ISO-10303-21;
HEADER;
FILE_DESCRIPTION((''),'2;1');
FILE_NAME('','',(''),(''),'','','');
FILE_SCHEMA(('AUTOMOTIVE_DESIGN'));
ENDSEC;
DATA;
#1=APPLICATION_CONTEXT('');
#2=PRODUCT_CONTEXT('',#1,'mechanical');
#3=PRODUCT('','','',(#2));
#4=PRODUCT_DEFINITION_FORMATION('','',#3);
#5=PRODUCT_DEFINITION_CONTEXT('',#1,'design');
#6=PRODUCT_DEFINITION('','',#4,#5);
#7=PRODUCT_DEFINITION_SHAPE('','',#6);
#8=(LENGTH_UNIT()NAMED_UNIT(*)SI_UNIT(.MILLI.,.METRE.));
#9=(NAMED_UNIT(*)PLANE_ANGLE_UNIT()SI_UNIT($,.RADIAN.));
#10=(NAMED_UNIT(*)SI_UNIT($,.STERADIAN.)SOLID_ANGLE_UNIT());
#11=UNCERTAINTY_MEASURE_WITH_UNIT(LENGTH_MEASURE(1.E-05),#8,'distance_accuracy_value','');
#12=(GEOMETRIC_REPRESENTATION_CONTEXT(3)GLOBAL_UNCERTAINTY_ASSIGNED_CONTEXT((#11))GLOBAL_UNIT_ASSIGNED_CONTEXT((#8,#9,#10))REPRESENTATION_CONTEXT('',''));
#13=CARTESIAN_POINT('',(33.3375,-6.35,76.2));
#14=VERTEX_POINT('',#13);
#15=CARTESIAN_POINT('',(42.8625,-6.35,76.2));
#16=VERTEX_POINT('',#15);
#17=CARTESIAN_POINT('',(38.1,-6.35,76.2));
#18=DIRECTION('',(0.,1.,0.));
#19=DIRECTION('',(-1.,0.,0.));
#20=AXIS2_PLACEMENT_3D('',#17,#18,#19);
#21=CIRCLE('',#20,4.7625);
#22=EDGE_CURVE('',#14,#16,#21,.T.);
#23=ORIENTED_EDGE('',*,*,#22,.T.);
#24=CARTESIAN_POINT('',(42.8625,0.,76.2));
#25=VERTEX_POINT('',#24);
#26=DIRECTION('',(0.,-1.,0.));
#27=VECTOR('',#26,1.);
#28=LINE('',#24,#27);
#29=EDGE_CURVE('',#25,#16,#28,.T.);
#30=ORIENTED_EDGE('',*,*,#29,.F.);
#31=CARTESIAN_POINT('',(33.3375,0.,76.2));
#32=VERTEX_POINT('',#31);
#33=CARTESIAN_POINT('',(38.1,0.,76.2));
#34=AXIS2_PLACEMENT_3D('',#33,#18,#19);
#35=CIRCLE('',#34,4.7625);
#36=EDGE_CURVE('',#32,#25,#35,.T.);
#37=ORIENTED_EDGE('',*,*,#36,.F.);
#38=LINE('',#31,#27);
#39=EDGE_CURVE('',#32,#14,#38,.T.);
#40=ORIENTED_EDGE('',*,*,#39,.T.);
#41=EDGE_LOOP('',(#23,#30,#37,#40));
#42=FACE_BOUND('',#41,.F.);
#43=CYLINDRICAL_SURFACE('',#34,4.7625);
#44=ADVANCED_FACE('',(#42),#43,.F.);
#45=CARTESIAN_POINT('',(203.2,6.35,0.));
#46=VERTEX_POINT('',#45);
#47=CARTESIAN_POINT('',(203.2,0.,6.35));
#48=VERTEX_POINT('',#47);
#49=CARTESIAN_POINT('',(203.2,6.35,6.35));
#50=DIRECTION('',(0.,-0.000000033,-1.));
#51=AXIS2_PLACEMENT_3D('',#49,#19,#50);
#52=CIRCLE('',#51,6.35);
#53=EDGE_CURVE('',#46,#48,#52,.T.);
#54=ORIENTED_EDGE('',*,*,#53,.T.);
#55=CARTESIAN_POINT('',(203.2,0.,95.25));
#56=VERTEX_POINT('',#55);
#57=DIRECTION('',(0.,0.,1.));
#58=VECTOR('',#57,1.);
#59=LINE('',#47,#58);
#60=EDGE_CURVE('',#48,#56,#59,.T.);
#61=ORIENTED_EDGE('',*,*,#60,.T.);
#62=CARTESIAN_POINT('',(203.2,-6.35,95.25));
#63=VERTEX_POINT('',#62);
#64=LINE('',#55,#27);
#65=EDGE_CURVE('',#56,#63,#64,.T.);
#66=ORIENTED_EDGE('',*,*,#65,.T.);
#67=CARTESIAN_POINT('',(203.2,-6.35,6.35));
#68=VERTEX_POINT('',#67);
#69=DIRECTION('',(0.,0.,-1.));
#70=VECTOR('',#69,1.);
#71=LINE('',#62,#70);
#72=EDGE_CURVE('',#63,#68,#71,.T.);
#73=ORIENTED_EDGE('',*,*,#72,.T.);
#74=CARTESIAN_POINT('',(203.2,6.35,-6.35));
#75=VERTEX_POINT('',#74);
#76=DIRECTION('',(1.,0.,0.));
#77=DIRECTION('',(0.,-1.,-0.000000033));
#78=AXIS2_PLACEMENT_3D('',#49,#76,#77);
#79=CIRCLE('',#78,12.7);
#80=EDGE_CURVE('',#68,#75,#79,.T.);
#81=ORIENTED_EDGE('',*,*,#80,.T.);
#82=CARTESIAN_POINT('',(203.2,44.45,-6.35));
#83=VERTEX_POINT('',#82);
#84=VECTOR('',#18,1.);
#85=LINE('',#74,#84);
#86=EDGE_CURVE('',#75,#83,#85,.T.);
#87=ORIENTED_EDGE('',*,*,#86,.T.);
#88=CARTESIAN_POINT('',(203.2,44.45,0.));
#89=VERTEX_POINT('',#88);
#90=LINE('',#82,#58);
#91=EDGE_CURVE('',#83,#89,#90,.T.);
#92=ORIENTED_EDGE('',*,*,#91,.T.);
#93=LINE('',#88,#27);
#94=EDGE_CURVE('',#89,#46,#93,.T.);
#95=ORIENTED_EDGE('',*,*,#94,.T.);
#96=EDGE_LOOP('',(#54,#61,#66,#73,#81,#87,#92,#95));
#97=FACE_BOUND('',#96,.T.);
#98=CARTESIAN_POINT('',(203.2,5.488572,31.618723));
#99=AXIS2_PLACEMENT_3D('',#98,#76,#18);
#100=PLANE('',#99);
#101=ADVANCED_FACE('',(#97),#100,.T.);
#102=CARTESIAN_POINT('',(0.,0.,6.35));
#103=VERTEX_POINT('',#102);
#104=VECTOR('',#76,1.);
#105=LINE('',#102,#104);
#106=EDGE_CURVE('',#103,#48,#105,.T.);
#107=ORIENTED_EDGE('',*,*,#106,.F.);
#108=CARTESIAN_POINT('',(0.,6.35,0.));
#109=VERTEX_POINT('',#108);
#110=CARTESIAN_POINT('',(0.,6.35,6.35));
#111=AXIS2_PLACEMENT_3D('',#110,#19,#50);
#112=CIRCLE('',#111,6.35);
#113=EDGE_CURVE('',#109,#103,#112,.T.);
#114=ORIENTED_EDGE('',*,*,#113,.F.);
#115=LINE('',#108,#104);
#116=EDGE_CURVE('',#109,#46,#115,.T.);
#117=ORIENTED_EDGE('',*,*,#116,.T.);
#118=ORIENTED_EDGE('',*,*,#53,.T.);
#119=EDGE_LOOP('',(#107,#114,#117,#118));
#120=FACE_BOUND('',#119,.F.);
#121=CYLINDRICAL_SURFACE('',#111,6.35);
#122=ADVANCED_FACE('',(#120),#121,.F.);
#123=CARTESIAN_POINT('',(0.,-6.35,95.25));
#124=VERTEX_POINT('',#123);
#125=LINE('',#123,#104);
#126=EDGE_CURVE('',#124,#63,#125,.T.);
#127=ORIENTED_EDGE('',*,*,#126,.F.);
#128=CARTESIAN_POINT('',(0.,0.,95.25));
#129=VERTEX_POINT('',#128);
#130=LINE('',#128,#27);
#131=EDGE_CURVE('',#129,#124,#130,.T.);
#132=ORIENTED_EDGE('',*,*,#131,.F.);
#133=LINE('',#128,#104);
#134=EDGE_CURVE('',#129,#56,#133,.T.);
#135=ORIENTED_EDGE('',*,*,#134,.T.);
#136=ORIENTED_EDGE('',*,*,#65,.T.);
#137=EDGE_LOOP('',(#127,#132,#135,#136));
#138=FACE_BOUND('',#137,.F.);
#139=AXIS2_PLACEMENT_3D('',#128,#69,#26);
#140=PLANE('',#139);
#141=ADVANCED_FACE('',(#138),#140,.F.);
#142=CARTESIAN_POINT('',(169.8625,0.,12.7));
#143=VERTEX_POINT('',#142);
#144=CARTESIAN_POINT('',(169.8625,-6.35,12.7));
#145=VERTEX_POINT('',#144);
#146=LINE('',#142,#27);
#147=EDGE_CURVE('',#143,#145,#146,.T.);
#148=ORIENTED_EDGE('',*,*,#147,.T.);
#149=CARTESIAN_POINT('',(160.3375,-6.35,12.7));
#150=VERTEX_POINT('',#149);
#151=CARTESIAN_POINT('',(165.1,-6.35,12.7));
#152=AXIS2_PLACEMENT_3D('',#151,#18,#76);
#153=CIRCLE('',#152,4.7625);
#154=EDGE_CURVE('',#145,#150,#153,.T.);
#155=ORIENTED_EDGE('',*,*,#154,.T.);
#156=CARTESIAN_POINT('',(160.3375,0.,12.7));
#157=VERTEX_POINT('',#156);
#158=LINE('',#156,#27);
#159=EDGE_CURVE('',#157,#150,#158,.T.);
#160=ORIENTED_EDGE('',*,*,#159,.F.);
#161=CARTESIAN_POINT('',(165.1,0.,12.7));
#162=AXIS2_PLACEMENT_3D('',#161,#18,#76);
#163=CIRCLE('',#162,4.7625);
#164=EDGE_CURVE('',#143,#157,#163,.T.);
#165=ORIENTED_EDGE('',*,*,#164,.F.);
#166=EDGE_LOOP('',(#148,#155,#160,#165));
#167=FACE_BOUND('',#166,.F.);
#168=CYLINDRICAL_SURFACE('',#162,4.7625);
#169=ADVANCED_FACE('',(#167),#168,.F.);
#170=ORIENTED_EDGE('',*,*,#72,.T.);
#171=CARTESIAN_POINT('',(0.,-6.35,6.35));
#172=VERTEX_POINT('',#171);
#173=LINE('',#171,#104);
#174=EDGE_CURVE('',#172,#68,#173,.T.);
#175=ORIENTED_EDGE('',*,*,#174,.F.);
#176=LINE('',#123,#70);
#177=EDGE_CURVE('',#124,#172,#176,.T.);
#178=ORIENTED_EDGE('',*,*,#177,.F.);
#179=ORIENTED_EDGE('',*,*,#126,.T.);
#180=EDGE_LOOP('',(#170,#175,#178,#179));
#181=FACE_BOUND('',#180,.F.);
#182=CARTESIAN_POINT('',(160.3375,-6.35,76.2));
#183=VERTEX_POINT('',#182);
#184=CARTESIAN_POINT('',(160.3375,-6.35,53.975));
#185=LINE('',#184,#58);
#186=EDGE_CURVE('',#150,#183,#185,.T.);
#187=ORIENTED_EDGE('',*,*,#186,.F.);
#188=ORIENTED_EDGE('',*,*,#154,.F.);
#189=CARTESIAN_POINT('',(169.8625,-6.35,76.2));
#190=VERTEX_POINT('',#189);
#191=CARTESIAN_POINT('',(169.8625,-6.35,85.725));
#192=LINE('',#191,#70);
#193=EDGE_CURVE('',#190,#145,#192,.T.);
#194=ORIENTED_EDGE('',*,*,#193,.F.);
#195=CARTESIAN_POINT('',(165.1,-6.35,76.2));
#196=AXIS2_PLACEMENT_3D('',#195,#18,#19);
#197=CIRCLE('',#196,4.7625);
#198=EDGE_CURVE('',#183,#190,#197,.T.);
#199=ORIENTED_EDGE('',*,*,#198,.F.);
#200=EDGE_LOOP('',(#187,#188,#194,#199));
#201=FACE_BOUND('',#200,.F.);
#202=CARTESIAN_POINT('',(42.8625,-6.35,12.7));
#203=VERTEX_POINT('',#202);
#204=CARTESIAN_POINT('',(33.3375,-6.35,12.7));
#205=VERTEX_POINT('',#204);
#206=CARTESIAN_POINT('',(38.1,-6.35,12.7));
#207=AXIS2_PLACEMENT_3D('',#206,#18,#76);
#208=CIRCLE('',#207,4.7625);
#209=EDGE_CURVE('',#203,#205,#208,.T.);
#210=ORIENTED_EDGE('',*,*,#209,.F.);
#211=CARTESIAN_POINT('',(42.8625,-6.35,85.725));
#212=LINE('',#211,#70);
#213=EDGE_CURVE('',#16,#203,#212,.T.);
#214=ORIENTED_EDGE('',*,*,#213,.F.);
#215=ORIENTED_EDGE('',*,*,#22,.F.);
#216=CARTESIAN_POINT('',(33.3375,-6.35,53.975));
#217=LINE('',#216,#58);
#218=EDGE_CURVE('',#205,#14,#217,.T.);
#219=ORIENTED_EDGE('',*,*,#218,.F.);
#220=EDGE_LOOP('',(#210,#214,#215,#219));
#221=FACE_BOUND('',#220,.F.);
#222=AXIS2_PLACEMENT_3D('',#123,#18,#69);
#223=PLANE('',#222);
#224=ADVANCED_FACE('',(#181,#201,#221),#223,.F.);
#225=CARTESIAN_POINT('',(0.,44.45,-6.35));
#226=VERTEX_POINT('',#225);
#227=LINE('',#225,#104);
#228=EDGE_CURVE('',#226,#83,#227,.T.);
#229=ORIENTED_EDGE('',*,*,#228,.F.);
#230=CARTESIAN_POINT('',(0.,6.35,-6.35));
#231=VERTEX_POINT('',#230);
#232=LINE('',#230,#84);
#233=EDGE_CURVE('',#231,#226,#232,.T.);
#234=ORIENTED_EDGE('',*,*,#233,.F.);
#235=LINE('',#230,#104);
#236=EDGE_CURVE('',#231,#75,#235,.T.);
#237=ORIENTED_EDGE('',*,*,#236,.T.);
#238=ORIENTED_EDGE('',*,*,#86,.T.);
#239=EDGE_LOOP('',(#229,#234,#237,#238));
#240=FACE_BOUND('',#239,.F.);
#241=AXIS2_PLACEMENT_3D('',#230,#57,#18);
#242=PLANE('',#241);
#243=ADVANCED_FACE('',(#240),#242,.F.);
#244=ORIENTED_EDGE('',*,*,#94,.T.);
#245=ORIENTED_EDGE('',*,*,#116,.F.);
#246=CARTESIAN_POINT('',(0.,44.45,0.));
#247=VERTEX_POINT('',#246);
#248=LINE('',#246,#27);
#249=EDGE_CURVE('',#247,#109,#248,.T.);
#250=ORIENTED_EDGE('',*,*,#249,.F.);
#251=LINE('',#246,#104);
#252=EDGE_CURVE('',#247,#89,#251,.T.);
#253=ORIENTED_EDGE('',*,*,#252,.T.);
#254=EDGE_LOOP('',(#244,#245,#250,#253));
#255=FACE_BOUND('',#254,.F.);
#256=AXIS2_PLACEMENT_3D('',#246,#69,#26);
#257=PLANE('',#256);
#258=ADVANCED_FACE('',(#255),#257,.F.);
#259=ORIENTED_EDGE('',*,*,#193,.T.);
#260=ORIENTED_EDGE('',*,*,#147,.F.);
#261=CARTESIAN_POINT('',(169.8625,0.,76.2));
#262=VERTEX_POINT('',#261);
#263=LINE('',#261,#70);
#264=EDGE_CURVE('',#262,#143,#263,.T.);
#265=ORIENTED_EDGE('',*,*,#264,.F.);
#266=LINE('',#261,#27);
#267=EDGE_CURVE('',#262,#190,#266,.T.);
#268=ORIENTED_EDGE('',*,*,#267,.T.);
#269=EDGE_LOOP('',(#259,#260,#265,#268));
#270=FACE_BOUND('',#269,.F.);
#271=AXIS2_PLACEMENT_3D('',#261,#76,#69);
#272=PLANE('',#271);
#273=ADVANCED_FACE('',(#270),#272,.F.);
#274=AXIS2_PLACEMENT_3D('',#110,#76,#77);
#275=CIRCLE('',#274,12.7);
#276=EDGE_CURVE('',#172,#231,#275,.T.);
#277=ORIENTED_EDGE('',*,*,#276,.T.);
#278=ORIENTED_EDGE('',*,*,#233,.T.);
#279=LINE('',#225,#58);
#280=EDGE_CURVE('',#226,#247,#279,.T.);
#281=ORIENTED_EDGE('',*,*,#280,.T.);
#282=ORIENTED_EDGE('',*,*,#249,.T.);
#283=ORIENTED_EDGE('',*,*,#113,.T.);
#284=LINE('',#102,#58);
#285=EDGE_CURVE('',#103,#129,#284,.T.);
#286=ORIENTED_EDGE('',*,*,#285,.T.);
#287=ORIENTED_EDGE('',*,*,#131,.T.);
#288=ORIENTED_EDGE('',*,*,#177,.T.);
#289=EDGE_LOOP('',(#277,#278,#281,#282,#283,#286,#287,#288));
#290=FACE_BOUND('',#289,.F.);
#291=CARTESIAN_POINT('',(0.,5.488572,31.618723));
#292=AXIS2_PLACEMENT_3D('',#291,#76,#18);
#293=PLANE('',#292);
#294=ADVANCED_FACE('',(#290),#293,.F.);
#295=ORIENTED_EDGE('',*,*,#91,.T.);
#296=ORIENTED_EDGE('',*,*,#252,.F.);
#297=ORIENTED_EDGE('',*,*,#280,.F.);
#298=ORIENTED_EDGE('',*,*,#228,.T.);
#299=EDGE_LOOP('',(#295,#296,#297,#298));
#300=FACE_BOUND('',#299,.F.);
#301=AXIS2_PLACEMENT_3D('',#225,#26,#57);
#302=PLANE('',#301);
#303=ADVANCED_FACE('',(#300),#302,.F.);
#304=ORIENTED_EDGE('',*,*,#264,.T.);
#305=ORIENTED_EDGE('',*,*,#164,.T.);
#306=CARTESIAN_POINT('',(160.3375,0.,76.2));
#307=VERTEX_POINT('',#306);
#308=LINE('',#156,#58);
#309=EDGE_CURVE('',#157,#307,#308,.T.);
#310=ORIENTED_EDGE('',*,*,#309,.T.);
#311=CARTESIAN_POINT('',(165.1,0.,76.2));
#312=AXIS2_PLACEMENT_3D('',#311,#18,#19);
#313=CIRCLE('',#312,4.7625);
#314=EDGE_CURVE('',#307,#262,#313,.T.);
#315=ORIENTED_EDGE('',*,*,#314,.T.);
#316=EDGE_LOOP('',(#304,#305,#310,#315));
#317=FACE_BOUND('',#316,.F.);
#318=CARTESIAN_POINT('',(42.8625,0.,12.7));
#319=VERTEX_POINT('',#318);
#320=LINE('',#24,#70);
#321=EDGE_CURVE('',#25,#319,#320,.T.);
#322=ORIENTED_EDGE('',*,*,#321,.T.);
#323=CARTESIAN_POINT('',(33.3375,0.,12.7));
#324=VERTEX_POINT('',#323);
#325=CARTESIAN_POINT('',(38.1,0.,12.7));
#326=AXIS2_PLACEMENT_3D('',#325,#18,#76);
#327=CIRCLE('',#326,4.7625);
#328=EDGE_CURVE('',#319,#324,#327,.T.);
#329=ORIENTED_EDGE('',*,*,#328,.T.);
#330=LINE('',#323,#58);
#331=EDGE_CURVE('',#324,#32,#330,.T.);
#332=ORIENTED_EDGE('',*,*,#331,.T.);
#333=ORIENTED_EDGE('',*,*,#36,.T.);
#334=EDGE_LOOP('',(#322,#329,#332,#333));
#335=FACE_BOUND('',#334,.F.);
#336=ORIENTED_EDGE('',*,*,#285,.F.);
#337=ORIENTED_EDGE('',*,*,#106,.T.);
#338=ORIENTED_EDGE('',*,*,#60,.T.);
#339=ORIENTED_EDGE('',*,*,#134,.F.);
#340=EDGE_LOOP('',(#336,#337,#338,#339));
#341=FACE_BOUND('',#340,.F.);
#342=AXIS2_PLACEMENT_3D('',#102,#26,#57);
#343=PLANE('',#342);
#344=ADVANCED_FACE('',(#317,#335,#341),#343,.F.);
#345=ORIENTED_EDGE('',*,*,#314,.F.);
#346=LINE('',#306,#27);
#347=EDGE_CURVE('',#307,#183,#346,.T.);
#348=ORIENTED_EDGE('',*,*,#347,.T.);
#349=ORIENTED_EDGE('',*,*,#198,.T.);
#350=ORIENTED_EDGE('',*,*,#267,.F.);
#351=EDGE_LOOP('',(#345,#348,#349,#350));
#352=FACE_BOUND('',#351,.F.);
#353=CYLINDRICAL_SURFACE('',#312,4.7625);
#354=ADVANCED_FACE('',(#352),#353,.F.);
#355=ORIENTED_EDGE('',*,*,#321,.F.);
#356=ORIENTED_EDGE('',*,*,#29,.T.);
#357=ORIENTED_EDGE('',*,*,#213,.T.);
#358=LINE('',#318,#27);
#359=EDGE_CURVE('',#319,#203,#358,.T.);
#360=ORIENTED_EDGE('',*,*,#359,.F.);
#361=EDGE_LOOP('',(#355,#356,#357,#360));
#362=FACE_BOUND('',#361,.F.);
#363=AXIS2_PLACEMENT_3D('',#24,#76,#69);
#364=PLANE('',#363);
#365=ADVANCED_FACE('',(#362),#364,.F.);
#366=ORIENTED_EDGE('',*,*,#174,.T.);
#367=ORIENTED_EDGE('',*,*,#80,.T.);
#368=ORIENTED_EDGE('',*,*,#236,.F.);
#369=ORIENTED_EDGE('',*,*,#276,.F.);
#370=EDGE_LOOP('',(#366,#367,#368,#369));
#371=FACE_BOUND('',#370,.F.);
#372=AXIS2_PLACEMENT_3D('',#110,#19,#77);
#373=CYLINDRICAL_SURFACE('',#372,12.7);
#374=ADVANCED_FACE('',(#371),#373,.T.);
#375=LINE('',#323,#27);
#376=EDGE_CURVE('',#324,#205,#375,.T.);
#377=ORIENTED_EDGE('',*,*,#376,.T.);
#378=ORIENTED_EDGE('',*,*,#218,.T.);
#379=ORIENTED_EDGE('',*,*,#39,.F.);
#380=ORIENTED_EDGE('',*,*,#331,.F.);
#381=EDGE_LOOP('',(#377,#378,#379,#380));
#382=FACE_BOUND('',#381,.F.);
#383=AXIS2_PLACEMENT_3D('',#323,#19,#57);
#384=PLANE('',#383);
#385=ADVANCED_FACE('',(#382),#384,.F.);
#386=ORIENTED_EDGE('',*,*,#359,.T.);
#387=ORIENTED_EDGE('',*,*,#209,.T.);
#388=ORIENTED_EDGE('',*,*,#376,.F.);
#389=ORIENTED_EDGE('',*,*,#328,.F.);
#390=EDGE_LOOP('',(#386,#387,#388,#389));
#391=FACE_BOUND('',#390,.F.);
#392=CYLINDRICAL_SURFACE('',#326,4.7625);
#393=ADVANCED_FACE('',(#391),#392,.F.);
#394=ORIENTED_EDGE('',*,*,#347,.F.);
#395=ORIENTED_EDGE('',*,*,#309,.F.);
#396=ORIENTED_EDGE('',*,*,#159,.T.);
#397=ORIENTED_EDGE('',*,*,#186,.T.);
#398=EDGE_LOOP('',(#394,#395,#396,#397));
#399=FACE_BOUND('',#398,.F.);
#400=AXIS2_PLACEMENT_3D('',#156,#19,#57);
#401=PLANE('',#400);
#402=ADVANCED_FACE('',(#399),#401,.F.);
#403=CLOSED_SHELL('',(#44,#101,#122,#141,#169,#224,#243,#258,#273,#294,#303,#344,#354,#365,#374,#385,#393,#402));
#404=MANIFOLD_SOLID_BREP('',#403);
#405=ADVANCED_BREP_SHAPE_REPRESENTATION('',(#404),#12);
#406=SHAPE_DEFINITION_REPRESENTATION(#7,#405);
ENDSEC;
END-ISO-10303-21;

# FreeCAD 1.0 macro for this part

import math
import FreeCAD as App
import Part
import Sketcher
from FreeCAD import Vector
Q = App.Units.Quantity

doc = App.newDocument("Part")
body = doc.addObject("PartDesign::Body", "Body")

sketch1 = body.newObject("Sketcher::SketchObject", "Sketch")
sketch1.AttachmentSupport = (doc.getObject("YZ_Plane"), [""])
sketch1.MapMode = "FlatFace"
sketch1.addGeometry(Part.LineSegment(Vector(0, 95.25, 0), Vector(-6.35, 95.25, 0)), False)
sketch1.addGeometry(Part.LineSegment(Vector(-6.35, 95.25, 0), Vector(-6.35, 6.35, 0)), False)
sketch1.addGeometry(Part.ArcOfCircle(Part.Circle(Vector(6.35, 6.35, 0), Vector(0, 0, 1), 12.7), math.radians(-179.999998), math.radians(-90.000002)), False)
sketch1.addGeometry(Part.LineSegment(Vector(6.35, -6.35, 0), Vector(44.45, -6.35, 0)), False)
sketch1.addGeometry(Part.LineSegment(Vector(44.45, -6.35, 0), Vector(44.45, 0, 0)), False)
sketch1.addGeometry(Part.LineSegment(Vector(44.45, 0, 0), Vector(6.35, 0, 0)), False)
sketch1.addGeometry(Part.ArcOfCircle(Part.Circle(Vector(6.35, 6.35, 0), Vector(0, 0, 1), 6.35), math.radians(-179.999998), math.radians(-90.000002)), False)
sketch1.addGeometry(Part.LineSegment(Vector(0, 6.35, 0), Vector(0, 95.25, 0)), False)
sketch1.addConstraint(Sketcher.Constraint("Coincident", 0, 2, 1, 1))
sketch1.addConstraint(Sketcher.Constraint("Tangent", 1, 2, 2, 1))
sketch1.addConstraint(Sketcher.Constraint("Tangent", 2, 2, 3, 1))
sketch1.addConstraint(Sketcher.Constraint("Coincident", 3, 2, 4, 1))
sketch1.addConstraint(Sketcher.Constraint("Coincident", 4, 2, 5, 1))
sketch1.addConstraint(Sketcher.Constraint("Tangent", 5, 2, 6, 2))
sketch1.addConstraint(Sketcher.Constraint("Tangent", 6, 1, 7, 1))
sketch1.addConstraint(Sketcher.Constraint("Coincident", 7, 2, 0, 1))
sketch1.addConstraint(Sketcher.Constraint("Horizontal", 0))
sketch1.addConstraint(Sketcher.Constraint("Vertical", 1))
sketch1.addConstraint(Sketcher.Constraint("Horizontal", 3))
sketch1.addConstraint(Sketcher.Constraint("Vertical", 4))
sketch1.addConstraint(Sketcher.Constraint("Horizontal", 5))
sketch1.addConstraint(Sketcher.Constraint("Vertical", 7))
sketch1.addConstraint(Sketcher.Constraint("Coincident", 6, 3, 2, 3))
sketch1.addConstraint(Sketcher.Constraint("Symmetric", 1, 2, 2, 2, -1, 1))
sketch1.addConstraint(Sketcher.Constraint("PointOnObject", 4, 2, -1))
sketch1.addConstraint(Sketcher.Constraint("Radius", 2, Q("0.5 in")))
sketch1.addConstraint(Sketcher.Constraint("DistanceX", 3, 1, 3, 2, Q("1.5 in")))
sketch1.addConstraint(Sketcher.Constraint("DistanceY", 1, 2, 1, 1, Q("3.5 in")))
pad1 = body.newObject("PartDesign::Pad", "Pad")
pad1.Profile = sketch1
pad1.Length = Q("8 in")

sketch2 = body.newObject("Sketcher::SketchObject", "Sketch001")
sketch2.AttachmentSupport = (doc.getObject("XZ_Plane"), [""])
sketch2.MapMode = "FlatFace"
sketch2.addGeometry(Part.LineSegment(Vector(160.3375, 12.7, 0), Vector(160.3375, 76.2, 0)), False)
sketch2.addGeometry(Part.ArcOfCircle(Part.Circle(Vector(165.1, 76.2, 0), Vector(0, 0, 1), 4.7625), math.radians(0), math.radians(180)), False)
sketch2.addGeometry(Part.LineSegment(Vector(169.8625, 76.2, 0), Vector(169.8625, 12.7, 0)), False)
sketch2.addGeometry(Part.ArcOfCircle(Part.Circle(Vector(165.1, 12.7, 0), Vector(0, 0, 1), 4.7625), math.radians(180), math.radians(360)), False)
sketch2.addGeometry(Part.LineSegment(Vector(33.3375, 12.7, 0), Vector(33.3375, 76.2, 0)), False)
sketch2.addGeometry(Part.ArcOfCircle(Part.Circle(Vector(38.1, 76.2, 0), Vector(0, 0, 1), 4.7625), math.radians(0), math.radians(180)), False)
sketch2.addGeometry(Part.LineSegment(Vector(42.8625, 76.2, 0), Vector(42.8625, 12.7, 0)), False)
sketch2.addGeometry(Part.ArcOfCircle(Part.Circle(Vector(38.1, 12.7, 0), Vector(0, 0, 1), 4.7625), math.radians(180), math.radians(360)), False)
sketch2.addConstraint(Sketcher.Constraint("Tangent", 0, 2, 1, 2))
sketch2.addConstraint(Sketcher.Constraint("Tangent", 1, 1, 2, 1))
sketch2.addConstraint(Sketcher.Constraint("Tangent", 2, 2, 3, 2))
sketch2.addConstraint(Sketcher.Constraint("Tangent", 3, 1, 0, 1))
sketch2.addConstraint(Sketcher.Constraint("Tangent", 4, 2, 5, 2))
sketch2.addConstraint(Sketcher.Constraint("Tangent", 5, 1, 6, 1))
sketch2.addConstraint(Sketcher.Constraint("Tangent", 6, 2, 7, 2))
sketch2.addConstraint(Sketcher.Constraint("Tangent", 7, 1, 4, 1))
sketch2.addConstraint(Sketcher.Constraint("Vertical", 0))
sketch2.addConstraint(Sketcher.Constraint("Vertical", 2))
sketch2.addConstraint(Sketcher.Constraint("Vertical", 4))
sketch2.addConstraint(Sketcher.Constraint("Vertical", 6))
sketch2.addConstraint(Sketcher.Constraint("Equal", 3, 5))
sketch2.addConstraint(Sketcher.Constraint("Horizontal", 1, 3, 5, 3))
sketch2.addConstraint(Sketcher.Constraint("Horizontal", 3, 3, 7, 3))
sketch2.addConstraint(Sketcher.Constraint("DistanceY", 0, 1, 0, 2, Q("2.5 in")))
sketch2.addConstraint(Sketcher.Constraint("DistanceY", -1, 1, 1, 3, Q("3 in")))
sketch2.addConstraint(Sketcher.Constraint("Radius", 1, Q("0.1875 in")))
sketch2.addConstraint(Sketcher.Constraint("DistanceX", 5, 3, 1, 3, Q("5 in")))
sketch2.addConstraint(Sketcher.Constraint("DistanceX", -1, 1, 1, 3, Q("6.5 in")))
pocket1 = body.newObject("PartDesign::Pocket", "Pocket")
pocket1.Profile = sketch2
pocket1.Type = "ThroughAll"
pocket1.Reversed = True

doc.recompute()
